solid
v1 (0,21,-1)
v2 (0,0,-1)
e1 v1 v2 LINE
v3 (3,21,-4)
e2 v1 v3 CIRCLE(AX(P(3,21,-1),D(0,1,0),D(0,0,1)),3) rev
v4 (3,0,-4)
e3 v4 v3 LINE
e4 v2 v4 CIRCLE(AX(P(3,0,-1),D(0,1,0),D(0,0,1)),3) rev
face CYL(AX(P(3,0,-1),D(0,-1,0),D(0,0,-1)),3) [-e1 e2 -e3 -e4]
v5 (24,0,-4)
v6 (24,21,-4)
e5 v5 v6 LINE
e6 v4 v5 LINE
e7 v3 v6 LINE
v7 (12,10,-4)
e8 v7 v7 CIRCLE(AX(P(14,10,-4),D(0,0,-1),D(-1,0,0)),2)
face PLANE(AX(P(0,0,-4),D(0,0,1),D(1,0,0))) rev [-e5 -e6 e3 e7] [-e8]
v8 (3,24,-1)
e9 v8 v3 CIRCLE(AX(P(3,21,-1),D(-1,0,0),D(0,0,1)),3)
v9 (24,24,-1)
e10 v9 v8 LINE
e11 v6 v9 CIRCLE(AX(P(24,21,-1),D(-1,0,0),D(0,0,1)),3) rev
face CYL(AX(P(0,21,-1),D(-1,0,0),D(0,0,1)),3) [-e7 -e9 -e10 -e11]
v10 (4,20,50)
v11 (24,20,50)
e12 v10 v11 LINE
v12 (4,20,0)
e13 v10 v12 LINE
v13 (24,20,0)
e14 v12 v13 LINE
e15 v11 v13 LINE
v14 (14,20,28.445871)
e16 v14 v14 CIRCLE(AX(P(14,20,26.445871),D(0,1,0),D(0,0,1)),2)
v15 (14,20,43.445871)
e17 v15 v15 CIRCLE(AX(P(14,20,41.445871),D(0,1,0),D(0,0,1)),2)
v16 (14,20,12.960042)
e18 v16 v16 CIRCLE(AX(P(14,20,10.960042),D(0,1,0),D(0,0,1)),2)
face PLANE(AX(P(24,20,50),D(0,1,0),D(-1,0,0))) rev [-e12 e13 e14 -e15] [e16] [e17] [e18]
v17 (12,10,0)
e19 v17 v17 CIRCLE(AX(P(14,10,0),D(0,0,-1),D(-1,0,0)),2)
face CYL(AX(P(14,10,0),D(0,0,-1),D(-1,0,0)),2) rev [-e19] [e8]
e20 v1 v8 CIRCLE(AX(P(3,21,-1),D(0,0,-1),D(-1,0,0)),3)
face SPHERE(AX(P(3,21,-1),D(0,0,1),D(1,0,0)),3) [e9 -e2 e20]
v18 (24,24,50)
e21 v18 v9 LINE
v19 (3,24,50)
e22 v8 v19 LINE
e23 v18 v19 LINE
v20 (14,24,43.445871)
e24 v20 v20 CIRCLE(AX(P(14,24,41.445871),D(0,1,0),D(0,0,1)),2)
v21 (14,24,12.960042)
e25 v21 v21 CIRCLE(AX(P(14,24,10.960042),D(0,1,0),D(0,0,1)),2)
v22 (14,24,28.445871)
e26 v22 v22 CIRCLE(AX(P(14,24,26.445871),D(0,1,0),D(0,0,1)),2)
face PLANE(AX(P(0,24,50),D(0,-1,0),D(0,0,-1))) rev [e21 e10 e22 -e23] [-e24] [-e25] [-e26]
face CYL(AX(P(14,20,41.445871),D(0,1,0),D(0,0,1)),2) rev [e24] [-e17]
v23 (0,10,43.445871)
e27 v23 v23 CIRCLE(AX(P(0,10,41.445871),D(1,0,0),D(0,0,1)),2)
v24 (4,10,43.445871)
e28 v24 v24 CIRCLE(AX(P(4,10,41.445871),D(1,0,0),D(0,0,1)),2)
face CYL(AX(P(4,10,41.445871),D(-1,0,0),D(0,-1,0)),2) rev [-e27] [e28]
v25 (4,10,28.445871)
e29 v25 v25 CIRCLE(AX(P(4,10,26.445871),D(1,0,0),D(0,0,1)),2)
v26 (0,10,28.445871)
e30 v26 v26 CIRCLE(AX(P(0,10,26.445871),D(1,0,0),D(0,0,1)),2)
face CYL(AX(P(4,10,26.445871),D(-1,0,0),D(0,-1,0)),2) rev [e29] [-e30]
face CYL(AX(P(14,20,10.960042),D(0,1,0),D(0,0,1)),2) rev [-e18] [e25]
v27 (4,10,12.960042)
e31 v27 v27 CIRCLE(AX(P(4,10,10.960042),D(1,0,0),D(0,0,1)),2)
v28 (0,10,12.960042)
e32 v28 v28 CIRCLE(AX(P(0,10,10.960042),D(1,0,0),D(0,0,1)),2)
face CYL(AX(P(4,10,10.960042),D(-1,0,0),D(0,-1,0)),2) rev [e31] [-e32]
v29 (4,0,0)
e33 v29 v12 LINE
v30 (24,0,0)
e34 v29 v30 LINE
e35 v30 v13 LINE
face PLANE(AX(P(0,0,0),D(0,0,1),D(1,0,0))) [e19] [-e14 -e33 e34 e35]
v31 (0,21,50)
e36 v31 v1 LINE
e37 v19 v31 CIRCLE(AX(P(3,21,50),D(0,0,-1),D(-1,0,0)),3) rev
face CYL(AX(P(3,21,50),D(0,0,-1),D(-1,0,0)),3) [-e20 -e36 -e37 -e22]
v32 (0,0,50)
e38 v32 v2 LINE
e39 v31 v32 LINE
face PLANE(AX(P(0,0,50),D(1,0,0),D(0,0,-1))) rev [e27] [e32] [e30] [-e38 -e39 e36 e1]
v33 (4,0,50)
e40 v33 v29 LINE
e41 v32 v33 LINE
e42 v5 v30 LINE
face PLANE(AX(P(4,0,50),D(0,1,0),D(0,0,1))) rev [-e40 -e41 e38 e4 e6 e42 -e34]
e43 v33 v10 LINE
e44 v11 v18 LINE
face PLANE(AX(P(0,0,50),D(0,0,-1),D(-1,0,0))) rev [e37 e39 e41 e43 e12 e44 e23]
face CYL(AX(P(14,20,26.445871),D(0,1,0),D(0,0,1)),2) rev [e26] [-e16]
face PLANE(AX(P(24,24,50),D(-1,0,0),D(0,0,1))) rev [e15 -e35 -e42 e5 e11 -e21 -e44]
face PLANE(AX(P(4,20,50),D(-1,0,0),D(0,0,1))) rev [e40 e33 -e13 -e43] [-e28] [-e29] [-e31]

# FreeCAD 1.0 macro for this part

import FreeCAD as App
import Part
import Sketcher
from FreeCAD import Vector
Q = App.Units.Quantity


def edges_at(feature, points):
    """Names of the edges that pass closest to the given points."""
    edges = feature.Shape.Edges
    near = lambda p: min(range(len(edges)), key=lambda i: edges[i].distToShape(Part.Vertex(*p))[0])
    return sorted({f"Edge{near(p) + 1}" for p in points})

doc = App.newDocument("Part")
body = doc.addObject("PartDesign::Body", "Body")

# Sketch on XY plane
sketch1 = doc.addObject("Sketcher::SketchObject", "Sketch")
body.addObject(sketch1)
sketch1.AttachmentSupport = (doc.XY_Plane, [""])
sketch1.MapMode = "FlatFace"
sketch1.addGeometry(Part.LineSegment(Vector(0, 24, 0), Vector(0, 0, 0)), False)
sketch1.addGeometry(Part.LineSegment(Vector(0, 0, 0), Vector(4, 0, 0)), False)
sketch1.addGeometry(Part.LineSegment(Vector(4, 0, 0), Vector(4, 20, 0)), False)
sketch1.addGeometry(Part.LineSegment(Vector(4, 20, 0), Vector(24, 20, 0)), False)
sketch1.addGeometry(Part.LineSegment(Vector(24, 20, 0), Vector(24, 24, 0)), False)
sketch1.addGeometry(Part.LineSegment(Vector(24, 24, 0), Vector(0, 24, 0)), False)
sketch1.addConstraint(Sketcher.Constraint("Coincident", 0, 2, 1, 1))
sketch1.addConstraint(Sketcher.Constraint("Coincident", 1, 2, 2, 1))
sketch1.addConstraint(Sketcher.Constraint("Coincident", 2, 2, 3, 1))
sketch1.addConstraint(Sketcher.Constraint("Coincident", 3, 2, 4, 1))
sketch1.addConstraint(Sketcher.Constraint("Coincident", 4, 2, 5, 1))
sketch1.addConstraint(Sketcher.Constraint("Coincident", 5, 2, 0, 1))
sketch1.addConstraint(Sketcher.Constraint("Vertical", 0))
sketch1.addConstraint(Sketcher.Constraint("Horizontal", 1))
sketch1.addConstraint(Sketcher.Constraint("Vertical", 2))
sketch1.addConstraint(Sketcher.Constraint("Horizontal", 3))
sketch1.addConstraint(Sketcher.Constraint("Vertical", 4))
sketch1.addConstraint(Sketcher.Constraint("Horizontal", 5))
sketch1.addConstraint(Sketcher.Constraint("Coincident", 0, 2, -1, 1))
sketch1.addConstraint(Sketcher.Constraint("Equal", 5, 0))
sketch1.addConstraint(Sketcher.Constraint("Equal", 3, 2))
sketch1.addConstraint(Sketcher.Constraint("DistanceX", 1, 1, 1, 2, Q("4 mm")))
sketch1.addConstraint(Sketcher.Constraint("DistanceX", 3, 1, 3, 2, Q("20 mm")))
pad1 = doc.addObject("PartDesign::Pad", "Pad")
body.addObject(pad1)
pad1.Profile = sketch1
pad1.Length = 50

# Sketch on XY plane
sketch2 = doc.addObject("Sketcher::SketchObject", "Sketch001")
body.addObject(sketch2)
sketch2.AttachmentSupport = (doc.XY_Plane, [""])
sketch2.MapMode = "FlatFace"
sketch2.addGeometry(Part.LineSegment(Vector(24, 24, 0), Vector(24, 0, 0)), False)
sketch2.addGeometry(Part.LineSegment(Vector(24, 0, 0), Vector(0, 0, 0)), False)
sketch2.addGeometry(Part.LineSegment(Vector(0, 0, 0), Vector(0, 24, 0)), False)
sketch2.addGeometry(Part.LineSegment(Vector(0, 24, 0), Vector(24, 24, 0)), False)
sketch2.addConstraint(Sketcher.Constraint("Coincident", 0, 2, 1, 1))
sketch2.addConstraint(Sketcher.Constraint("Coincident", 1, 2, 2, 1))
sketch2.addConstraint(Sketcher.Constraint("Coincident", 2, 2, 3, 1))
sketch2.addConstraint(Sketcher.Constraint("Coincident", 3, 2, 0, 1))
sketch2.addConstraint(Sketcher.Constraint("Vertical", 0))
sketch2.addConstraint(Sketcher.Constraint("Horizontal", 1))
sketch2.addConstraint(Sketcher.Constraint("Vertical", 2))
sketch2.addConstraint(Sketcher.Constraint("Horizontal", 3))
sketch2.addConstraint(Sketcher.Constraint("Coincident", 1, 2, -1, 1))
sketch2.addConstraint(Sketcher.Constraint("Equal", 3, 0))
sketch2.addConstraint(Sketcher.Constraint("DistanceX", 1, 2, 1, 1, Q("24 mm")))
pad2 = doc.addObject("PartDesign::Pad", "Pad001")
body.addObject(pad2)
pad2.Profile = sketch2
pad2.Length = 4
pad2.Reversed = True

# Sketch on XY plane
sketch3 = doc.addObject("Sketcher::SketchObject", "Sketch002")
body.addObject(sketch3)
sketch3.AttachmentSupport = (doc.XY_Plane, [""])
sketch3.MapMode = "FlatFace"
sketch3.AttachmentOffset = App.Placement(Vector(0, 0, -4), App.Rotation())
sketch3.addGeometry(Part.Circle(Vector(14, 10, 0), Vector(0, 0, 1), 2), False)
sketch3.addConstraint(Sketcher.Constraint("Diameter", 0, Q("4 mm")))
sketch3.addConstraint(Sketcher.Constraint("DistanceX", -1, 1, 0, 3, Q("14 mm")))
sketch3.addConstraint(Sketcher.Constraint("DistanceY", -1, 1, 0, 3, Q("10 mm")))
pocket1 = doc.addObject("PartDesign::Pocket", "Pocket")
body.addObject(pocket1)
pocket1.Profile = sketch3
pocket1.Length = 4
pocket1.Reversed = True

# Sketch on XZ plane
sketch4 = doc.addObject("Sketcher::SketchObject", "Sketch003")
body.addObject(sketch4)
sketch4.AttachmentSupport = (doc.XZ_Plane, [""])
sketch4.MapMode = "FlatFace"
sketch4.AttachmentOffset = App.Placement(Vector(0, 0, -24), App.Rotation())
sketch4.addGeometry(Part.Circle(Vector(14, 26.4, 0), Vector(0, 0, 1), 2), False)
sketch4.addGeometry(Part.Circle(Vector(14, 11, 0), Vector(0, 0, 1), 2), False)
sketch4.addGeometry(Part.Circle(Vector(14, 41.4, 0), Vector(0, 0, 1), 2), False)
sketch4.addConstraint(Sketcher.Constraint("Equal", 0, 1))
sketch4.addConstraint(Sketcher.Constraint("Equal", 1, 2))
sketch4.addConstraint(Sketcher.Constraint("Vertical", 0, 3, 1, 3))
sketch4.addConstraint(Sketcher.Constraint("Vertical", 1, 3, 2, 3))
sketch4.addConstraint(Sketcher.Constraint("Diameter", 0, Q("4 mm")))
sketch4.addConstraint(Sketcher.Constraint("DistanceX", -1, 1, 0, 3, Q("14 mm")))
sketch4.addConstraint(Sketcher.Constraint("DistanceY", 0, 3, 2, 3, Q("15 mm")))
sketch4.addConstraint(Sketcher.Constraint("DistanceY", -1, 1, 0, 3, Q("26.445871 mm")))
sketch4.addConstraint(Sketcher.Constraint("DistanceY", -1, 1, 1, 3, Q("10.960042 mm")))
pocket2 = doc.addObject("PartDesign::Pocket", "Pocket001")
body.addObject(pocket2)
pocket2.Profile = sketch4
pocket2.Length = 4
pocket2.Reversed = True
doc.recompute()

datumplane = doc.addObject("PartDesign::Plane", "DatumPlane")
body.addObject(datumplane)
datumplane.Placement = App.Placement(Vector(12, 12, 0), App.Rotation(Vector(-0.707106781, 0.707106781, 0), Vector(0, 0, -1), Vector(-0.707106781, -0.707106781, 0), "ZXY"))
mirrored = doc.addObject("PartDesign::Mirrored", "Mirrored")
body.addObject(mirrored)
mirrored.Originals = [pocket2]
mirrored.MirrorPlane = (datumplane, [""])
body.Tip = mirrored
doc.recompute()

fillet = doc.addObject("PartDesign::Fillet", "Fillet")
body.addObject(fillet)
fillet.Base = (mirrored, edges_at(mirrored, [(0, 24, 23), (0, 12, -4), (12, 24, -4)]))
fillet.Radius = 3

doc.recompute()
